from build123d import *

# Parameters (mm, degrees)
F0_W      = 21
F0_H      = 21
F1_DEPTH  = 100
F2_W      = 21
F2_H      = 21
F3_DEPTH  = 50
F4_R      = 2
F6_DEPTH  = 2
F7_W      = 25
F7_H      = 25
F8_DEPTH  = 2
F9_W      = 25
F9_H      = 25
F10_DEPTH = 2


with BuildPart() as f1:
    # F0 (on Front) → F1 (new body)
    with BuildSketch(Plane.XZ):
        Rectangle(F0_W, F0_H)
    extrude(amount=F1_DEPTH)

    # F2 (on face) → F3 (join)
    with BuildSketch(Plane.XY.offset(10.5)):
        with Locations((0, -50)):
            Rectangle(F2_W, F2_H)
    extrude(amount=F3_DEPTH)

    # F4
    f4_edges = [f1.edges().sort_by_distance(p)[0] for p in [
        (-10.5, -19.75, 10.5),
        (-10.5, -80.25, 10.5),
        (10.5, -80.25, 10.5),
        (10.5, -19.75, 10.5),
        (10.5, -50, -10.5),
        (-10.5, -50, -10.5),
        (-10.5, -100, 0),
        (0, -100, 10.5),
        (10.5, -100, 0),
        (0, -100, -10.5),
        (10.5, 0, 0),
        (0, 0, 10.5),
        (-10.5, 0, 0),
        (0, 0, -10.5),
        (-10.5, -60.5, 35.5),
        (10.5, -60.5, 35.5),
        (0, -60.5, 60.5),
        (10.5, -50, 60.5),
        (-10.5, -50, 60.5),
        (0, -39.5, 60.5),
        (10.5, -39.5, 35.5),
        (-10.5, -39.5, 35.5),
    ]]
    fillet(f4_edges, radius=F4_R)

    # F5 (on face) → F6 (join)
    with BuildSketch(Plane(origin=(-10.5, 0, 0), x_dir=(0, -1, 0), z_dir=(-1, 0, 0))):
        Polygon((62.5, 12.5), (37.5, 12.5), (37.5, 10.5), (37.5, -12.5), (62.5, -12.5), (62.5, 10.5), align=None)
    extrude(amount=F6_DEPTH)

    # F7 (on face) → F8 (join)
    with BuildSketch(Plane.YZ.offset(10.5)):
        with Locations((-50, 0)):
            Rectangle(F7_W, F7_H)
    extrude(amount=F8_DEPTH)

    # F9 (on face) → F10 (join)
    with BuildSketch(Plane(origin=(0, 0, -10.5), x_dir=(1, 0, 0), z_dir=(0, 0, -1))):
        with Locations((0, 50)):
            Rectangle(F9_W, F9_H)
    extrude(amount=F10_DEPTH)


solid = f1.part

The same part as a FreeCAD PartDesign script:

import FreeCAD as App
import Part
import Sketcher

V = App.Vector


def edges_at(feature, points):
    """Names of the edges that pass closest to the given points."""
    edges = feature.Shape.Edges
    near = lambda p: min(range(len(edges)), key=lambda i: edges[i].distToShape(Part.Vertex(*p))[0])
    return sorted({f"Edge{near(p) + 1}" for p in points})

doc = App.newDocument("Part")
body = doc.addObject("PartDesign::Body", "Body")

sketch1 = body.newObject("Sketcher::SketchObject", "Sketch")
sketch1.AttachmentSupport = (doc.getObject("XZ_Plane"), [""])
sketch1.MapMode = "FlatFace"
sketch1.addGeometry(Part.LineSegment(V(-10.5, 10.5, 0), V(-10.5, -10.5, 0)), False)
sketch1.addGeometry(Part.LineSegment(V(-10.5, -10.5, 0), V(10.5, -10.5, 0)), False)
sketch1.addGeometry(Part.LineSegment(V(10.5, -10.5, 0), V(10.5, 10.5, 0)), False)
sketch1.addGeometry(Part.LineSegment(V(10.5, 10.5, 0), V(-10.5, 10.5, 0)), False)
sketch1.addConstraint(Sketcher.Constraint("Coincident", 0, 2, 1, 1))
sketch1.addConstraint(Sketcher.Constraint("Coincident", 1, 2, 2, 1))
sketch1.addConstraint(Sketcher.Constraint("Coincident", 2, 2, 3, 1))
sketch1.addConstraint(Sketcher.Constraint("Coincident", 3, 2, 0, 1))
sketch1.addConstraint(Sketcher.Constraint("Vertical", 0))
sketch1.addConstraint(Sketcher.Constraint("Horizontal", 1))
sketch1.addConstraint(Sketcher.Constraint("Vertical", 2))
sketch1.addConstraint(Sketcher.Constraint("Horizontal", 3))
sketch1.addConstraint(Sketcher.Constraint("Symmetric", 0, 2, 2, 2, -1, 1))
sketch1.addConstraint(Sketcher.Constraint("Equal", 3, 0))
sketch1.addConstraint(Sketcher.Constraint("DistanceX", 1, 1, 1, 2, 21.0))
pad1 = body.newObject("PartDesign::Pad", "Pad")
pad1.Profile = sketch1
pad1.Length = 100

sketch2 = body.newObject("Sketcher::SketchObject", "Sketch001")
sketch2.AttachmentSupport = (doc.getObject("XY_Plane"), [""])
sketch2.MapMode = "FlatFace"
sketch2.AttachmentOffset = App.Placement(V(0, 0, 10.5), App.Rotation())
sketch2.addGeometry(Part.LineSegment(V(-10.5, -39.5, 0), V(-10.5, -60.5, 0)), False)
sketch2.addGeometry(Part.LineSegment(V(-10.5, -60.5, 0), V(10.5, -60.5, 0)), False)
sketch2.addGeometry(Part.LineSegment(V(10.5, -60.5, 0), V(10.5, -39.5, 0)), False)
sketch2.addGeometry(Part.LineSegment(V(10.5, -39.5, 0), V(-10.5, -39.5, 0)), False)
sketch2.addConstraint(Sketcher.Constraint("Coincident", 0, 2, 1, 1))
sketch2.addConstraint(Sketcher.Constraint("Coincident", 1, 2, 2, 1))
sketch2.addConstraint(Sketcher.Constraint("Coincident", 2, 2, 3, 1))
sketch2.addConstraint(Sketcher.Constraint("Coincident", 3, 2, 0, 1))
sketch2.addConstraint(Sketcher.Constraint("Vertical", 0))
sketch2.addConstraint(Sketcher.Constraint("Horizontal", 1))
sketch2.addConstraint(Sketcher.Constraint("Vertical", 2))
sketch2.addConstraint(Sketcher.Constraint("Horizontal", 3))
sketch2.addConstraint(Sketcher.Constraint("Equal", 3, 0))
sketch2.addConstraint(Sketcher.Constraint("DistanceX", 1, 1, 1, 2, 21.0))
sketch2.addConstraint(Sketcher.Constraint("DistanceX", 0, 2, -1, 1, 10.5))
sketch2.addConstraint(Sketcher.Constraint("DistanceY", 0, 2, -1, 1, 60.5))
pad2 = body.newObject("PartDesign::Pad", "Pad001")
pad2.Profile = sketch2
pad2.Length = 50
doc.recompute()

fillet = body.newObject("PartDesign::Fillet", "Fillet")
fillet.Base = (pad2, edges_at(pad2, [
    (-10.5, -19.75, 10.5),
    (-10.5, -80.25, 10.5),
    (10.5, -80.25, 10.5),
    (10.5, -19.75, 10.5),
    (10.5, -50, -10.5),
    (-10.5, -50, -10.5),
    (-10.5, -100, 0),
    (0, -100, 10.5),
    (10.5, -100, 0),
    (0, -100, -10.5),
    (10.5, 0, 0),
    (0, 0, 10.5),
    (-10.5, 0, 0),
    (0, 0, -10.5),
    (-10.5, -60.5, 35.5),
    (10.5, -60.5, 35.5),
    (0, -60.5, 60.5),
    (10.5, -50, 60.5),
    (-10.5, -50, 60.5),
    (0, -39.5, 60.5),
    (10.5, -39.5, 35.5),
    (-10.5, -39.5, 35.5),
]))
fillet.Radius = 2

sketch3 = body.newObject("Sketcher::SketchObject", "Sketch002")
sketch3.AttachmentSupport = (doc.getObject("YZ_Plane"), [""])
sketch3.MapMode = "FlatFace"
sketch3.AttachmentOffset = App.Placement(V(0, 0, -10.5), App.Rotation())
sketch3.addGeometry(Part.LineSegment(V(-62.5, 12.5, 0), V(-37.5, 12.5, 0)), False)
sketch3.addGeometry(Part.LineSegment(V(-37.5, 12.5, 0), V(-37.5, -12.5, 0)), False)
sketch3.addGeometry(Part.LineSegment(V(-37.5, -12.5, 0), V(-62.5, -12.5, 0)), False)
sketch3.addGeometry(Part.LineSegment(V(-62.5, -12.5, 0), V(-62.5, 12.5, 0)), False)
sketch3.addConstraint(Sketcher.Constraint("Coincident", 0, 2, 1, 1))
sketch3.addConstraint(Sketcher.Constraint("Coincident", 1, 2, 2, 1))
sketch3.addConstraint(Sketcher.Constraint("Coincident", 2, 2, 3, 1))
sketch3.addConstraint(Sketcher.Constraint("Coincident", 3, 2, 0, 1))
sketch3.addConstraint(Sketcher.Constraint("Horizontal", 0))
sketch3.addConstraint(Sketcher.Constraint("Vertical", 1))
sketch3.addConstraint(Sketcher.Constraint("Horizontal", 2))
sketch3.addConstraint(Sketcher.Constraint("Vertical", 3))
sketch3.addConstraint(Sketcher.Constraint("Equal", 2, 1))
sketch3.addConstraint(Sketcher.Constraint("DistanceX", 0, 1, 0, 2, 25.0))
sketch3.addConstraint(Sketcher.Constraint("DistanceX", 0, 2, -1, 1, 37.5))
sketch3.addConstraint(Sketcher.Constraint("DistanceY", -1, 1, 0, 2, 12.5))
pad3 = body.newObject("PartDesign::Pad", "Pad002")
pad3.Profile = sketch3
pad3.Length = 2
pad3.Reversed = True

sketch4 = body.newObject("Sketcher::SketchObject", "Sketch003")
sketch4.AttachmentSupport = (doc.getObject("YZ_Plane"), [""])
sketch4.MapMode = "FlatFace"
sketch4.AttachmentOffset = App.Placement(V(0, 0, 10.5), App.Rotation())
sketch4.addGeometry(Part.LineSegment(V(-62.5, 12.5, 0), V(-62.5, -12.5, 0)), False)
sketch4.addGeometry(Part.LineSegment(V(-62.5, -12.5, 0), V(-37.5, -12.5, 0)), False)
sketch4.addGeometry(Part.LineSegment(V(-37.5, -12.5, 0), V(-37.5, 12.5, 0)), False)
sketch4.addGeometry(Part.LineSegment(V(-37.5, 12.5, 0), V(-62.5, 12.5, 0)), False)
sketch4.addConstraint(Sketcher.Constraint("Coincident", 0, 2, 1, 1))
sketch4.addConstraint(Sketcher.Constraint("Coincident", 1, 2, 2, 1))
sketch4.addConstraint(Sketcher.Constraint("Coincident", 2, 2, 3, 1))
sketch4.addConstraint(Sketcher.Constraint("Coincident", 3, 2, 0, 1))
sketch4.addConstraint(Sketcher.Constraint("Vertical", 0))
sketch4.addConstraint(Sketcher.Constraint("Horizontal", 1))
sketch4.addConstraint(Sketcher.Constraint("Vertical", 2))
sketch4.addConstraint(Sketcher.Constraint("Horizontal", 3))
sketch4.addConstraint(Sketcher.Constraint("Equal", 3, 0))
sketch4.addConstraint(Sketcher.Constraint("DistanceX", 1, 1, 1, 2, 25.0))
sketch4.addConstraint(Sketcher.Constraint("DistanceX", 0, 2, -1, 1, 62.5))
sketch4.addConstraint(Sketcher.Constraint("DistanceY", 0, 2, -1, 1, 12.5))
pad4 = body.newObject("PartDesign::Pad", "Pad003")
pad4.Profile = sketch4
pad4.Length = 2

sketch5 = body.newObject("Sketcher::SketchObject", "Sketch004")
sketch5.AttachmentSupport = (doc.getObject("XY_Plane"), [""])
sketch5.MapMode = "FlatFace"
sketch5.AttachmentOffset = App.Placement(V(0, 0, -10.5), App.Rotation())
sketch5.addGeometry(Part.LineSegment(V(-12.5, -62.5, 0), V(-12.5, -37.5, 0)), False)
sketch5.addGeometry(Part.LineSegment(V(-12.5, -37.5, 0), V(12.5, -37.5, 0)), False)
sketch5.addGeometry(Part.LineSegment(V(12.5, -37.5, 0), V(12.5, -62.5, 0)), False)
sketch5.addGeometry(Part.LineSegment(V(12.5, -62.5, 0), V(-12.5, -62.5, 0)), False)
sketch5.addConstraint(Sketcher.Constraint("Coincident", 0, 2, 1, 1))
sketch5.addConstraint(Sketcher.Constraint("Coincident", 1, 2, 2, 1))
sketch5.addConstraint(Sketcher.Constraint("Coincident", 2, 2, 3, 1))
sketch5.addConstraint(Sketcher.Constraint("Coincident", 3, 2, 0, 1))
sketch5.addConstraint(Sketcher.Constraint("Vertical", 0))
sketch5.addConstraint(Sketcher.Constraint("Horizontal", 1))
sketch5.addConstraint(Sketcher.Constraint("Vertical", 2))
sketch5.addConstraint(Sketcher.Constraint("Horizontal", 3))
sketch5.addConstraint(Sketcher.Constraint("Equal", 3, 0))
sketch5.addConstraint(Sketcher.Constraint("DistanceX", 1, 1, 1, 2, 25.0))
sketch5.addConstraint(Sketcher.Constraint("DistanceX", 0, 2, -1, 1, 12.5))
sketch5.addConstraint(Sketcher.Constraint("DistanceY", 0, 2, -1, 1, 37.5))
pad5 = body.newObject("PartDesign::Pad", "Pad004")
pad5.Profile = sketch5
pad5.Length = 2
pad5.Reversed = True

doc.recompute()
